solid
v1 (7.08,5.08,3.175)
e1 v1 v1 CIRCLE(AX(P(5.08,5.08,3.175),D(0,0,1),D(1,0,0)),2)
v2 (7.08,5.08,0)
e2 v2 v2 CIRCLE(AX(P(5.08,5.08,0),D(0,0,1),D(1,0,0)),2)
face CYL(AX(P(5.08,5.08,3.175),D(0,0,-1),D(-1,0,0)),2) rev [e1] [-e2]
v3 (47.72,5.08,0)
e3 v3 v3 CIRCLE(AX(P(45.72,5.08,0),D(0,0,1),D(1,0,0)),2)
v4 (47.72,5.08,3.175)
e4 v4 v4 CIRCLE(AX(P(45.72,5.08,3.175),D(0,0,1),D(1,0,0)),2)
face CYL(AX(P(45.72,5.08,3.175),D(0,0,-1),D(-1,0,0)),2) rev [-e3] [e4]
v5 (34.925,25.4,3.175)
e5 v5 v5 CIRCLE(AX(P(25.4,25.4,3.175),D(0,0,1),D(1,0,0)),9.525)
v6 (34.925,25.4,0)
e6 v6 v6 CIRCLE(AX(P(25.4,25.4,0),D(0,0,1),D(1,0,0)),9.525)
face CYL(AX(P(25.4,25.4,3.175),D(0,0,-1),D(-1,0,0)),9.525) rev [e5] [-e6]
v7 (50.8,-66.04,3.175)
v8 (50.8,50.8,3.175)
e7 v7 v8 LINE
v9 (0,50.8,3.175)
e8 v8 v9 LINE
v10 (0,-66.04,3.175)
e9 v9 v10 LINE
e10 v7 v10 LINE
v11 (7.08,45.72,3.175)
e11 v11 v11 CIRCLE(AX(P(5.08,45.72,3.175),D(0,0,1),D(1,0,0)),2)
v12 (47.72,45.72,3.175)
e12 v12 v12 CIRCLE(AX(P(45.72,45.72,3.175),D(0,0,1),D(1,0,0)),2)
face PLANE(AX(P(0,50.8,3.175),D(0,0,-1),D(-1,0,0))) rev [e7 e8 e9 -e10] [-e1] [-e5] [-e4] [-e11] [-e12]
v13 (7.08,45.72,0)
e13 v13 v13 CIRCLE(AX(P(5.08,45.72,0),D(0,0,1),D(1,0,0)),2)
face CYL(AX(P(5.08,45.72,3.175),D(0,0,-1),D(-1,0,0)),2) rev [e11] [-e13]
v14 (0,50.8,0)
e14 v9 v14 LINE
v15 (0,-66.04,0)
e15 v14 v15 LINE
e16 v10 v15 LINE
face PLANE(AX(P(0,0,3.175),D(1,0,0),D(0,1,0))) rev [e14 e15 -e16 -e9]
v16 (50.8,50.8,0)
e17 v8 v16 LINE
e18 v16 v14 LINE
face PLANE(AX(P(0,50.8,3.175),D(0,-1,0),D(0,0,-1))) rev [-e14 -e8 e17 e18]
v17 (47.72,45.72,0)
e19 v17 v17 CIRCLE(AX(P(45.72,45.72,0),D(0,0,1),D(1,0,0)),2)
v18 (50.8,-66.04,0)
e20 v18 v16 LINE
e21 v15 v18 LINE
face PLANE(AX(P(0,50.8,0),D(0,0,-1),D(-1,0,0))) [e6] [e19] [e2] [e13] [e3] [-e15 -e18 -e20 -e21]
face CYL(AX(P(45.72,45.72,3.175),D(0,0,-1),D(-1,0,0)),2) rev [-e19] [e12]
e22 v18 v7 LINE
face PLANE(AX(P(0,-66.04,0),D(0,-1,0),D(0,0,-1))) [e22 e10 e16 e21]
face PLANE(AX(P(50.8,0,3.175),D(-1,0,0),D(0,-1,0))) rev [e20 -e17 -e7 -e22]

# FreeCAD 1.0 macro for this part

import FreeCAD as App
import Part
import Sketcher

V = App.Vector
Q = App.Units.Quantity


def add_polygon(sketch, points):
    """Adds a closed chain of lines whose ends are joined by coincident constraints."""
    first, n = sketch.GeometryCount, len(points)
    for a, b in zip(points, points[1:] + points[:1]):
        sketch.addGeometry(Part.LineSegment(App.Vector(*a, 0), App.Vector(*b, 0)), False)
    for i in range(n):
        sketch.addConstraint(Sketcher.Constraint("Coincident", first + i, 2, first + (i + 1) % n, 1))

doc = App.newDocument("Part")
body = doc.addObject("PartDesign::Body", "Body")

# Sketch on XY plane
sketch1 = body.newObject("Sketcher::SketchObject", "Sketch")
sketch1.AttachmentSupport = (doc.getObject("XY_Plane"), [""])
sketch1.MapMode = "FlatFace"
add_polygon(sketch1, [(0, 50.8), (0, 0), (50.8, 0), (50.8, 50.8)])  # lines 0-3
sketch1.addGeometry(Part.Circle(V(5.1, 5.1, 0), V(0, 0, 1), 2), False)  # 4
sketch1.addGeometry(Part.Circle(V(45.7, 5.1, 0), V(0, 0, 1), 2), False)  # 5
sketch1.addGeometry(Part.Circle(V(5.1, 45.7, 0), V(0, 0, 1), 2), False)  # 6
sketch1.addGeometry(Part.Circle(V(25.4, 25.4, 0), V(0, 0, 1), 9.5), False)  # 7
sketch1.addGeometry(Part.Circle(V(45.7, 45.7, 0), V(0, 0, 1), 2), False)  # 8
sketch1.addConstraint(Sketcher.Constraint("Vertical", 0))
sketch1.addConstraint(Sketcher.Constraint("Horizontal", 1))
sketch1.addConstraint(Sketcher.Constraint("Vertical", 2))
sketch1.addConstraint(Sketcher.Constraint("Horizontal", 3))
sketch1.addConstraint(Sketcher.Constraint("Coincident", 0, 2, -1, 1))
sketch1.addConstraint(Sketcher.Constraint("Equal", 4, 5))
sketch1.addConstraint(Sketcher.Constraint("Equal", 5, 6))
sketch1.addConstraint(Sketcher.Constraint("Equal", 6, 8))
sketch1.addConstraint(Sketcher.Constraint("Horizontal", 4, 3, 5, 3))
sketch1.addConstraint(Sketcher.Constraint("Horizontal", 6, 3, 8, 3))
sketch1.addConstraint(Sketcher.Constraint("Vertical", 4, 3, 6, 3))
sketch1.addConstraint(Sketcher.Constraint("Vertical", 5, 3, 8, 3))
sketch1.addConstraint(Sketcher.Constraint("Equal", 3, 0))
sketch1.addConstraint(Sketcher.Constraint("Diameter", 7, Q("0.75 in")))
sketch1.addConstraint(Sketcher.Constraint("DistanceX", 1, 1, 1, 2, Q("2 in")))
sketch1.addConstraint(Sketcher.Constraint("DistanceX", -1, 1, 7, 3, Q("1 in")))
sketch1.addConstraint(Sketcher.Constraint("DistanceY", -1, 1, 7, 3, Q("1 in")))
sketch1.addConstraint(Sketcher.Constraint("DistanceX", -1, 1, 4, 3, Q("0.2 in")))
sketch1.addConstraint(Sketcher.Constraint("DistanceY", -1, 1, 4, 3, Q("0.2 in")))
sketch1.addConstraint(Sketcher.Constraint("DistanceX", -1, 1, 5, 3, Q("1.8 in")))
sketch1.addConstraint(Sketcher.Constraint("DistanceY", -1, 1, 6, 3, Q("1.8 in")))
sketch1.addConstraint(Sketcher.Constraint("Diameter", 4, Q("4 mm")))
pad1 = body.newObject("PartDesign::Pad", "Pad")
pad1.Profile = sketch1
pad1.Length = Q("0.125 in")

# Sketch on XZ plane
sketch2 = body.newObject("Sketcher::SketchObject", "Sketch001")
sketch2.AttachmentSupport = (doc.getObject("XZ_Plane"), [""])
sketch2.MapMode = "FlatFace"
add_polygon(sketch2, [(0, 3.2), (0, 0), (50.8, 0), (50.8, 3.2)])  # lines 0-3
sketch2.addConstraint(Sketcher.Constraint("Vertical", 0))
sketch2.addConstraint(Sketcher.Constraint("Horizontal", 1))
sketch2.addConstraint(Sketcher.Constraint("Vertical", 2))
sketch2.addConstraint(Sketcher.Constraint("Horizontal", 3))
sketch2.addConstraint(Sketcher.Constraint("Coincident", 0, 2, -1, 1))
sketch2.addConstraint(Sketcher.Constraint("DistanceX", 1, 1, 1, 2, Q("2 in")))
sketch2.addConstraint(Sketcher.Constraint("DistanceY", 0, 2, 0, 1, Q("0.125 in")))
pad2 = body.newObject("PartDesign::Pad", "Pad001")
pad2.Profile = sketch2
pad2.Length = Q("2.6 in")

doc.recompute()
